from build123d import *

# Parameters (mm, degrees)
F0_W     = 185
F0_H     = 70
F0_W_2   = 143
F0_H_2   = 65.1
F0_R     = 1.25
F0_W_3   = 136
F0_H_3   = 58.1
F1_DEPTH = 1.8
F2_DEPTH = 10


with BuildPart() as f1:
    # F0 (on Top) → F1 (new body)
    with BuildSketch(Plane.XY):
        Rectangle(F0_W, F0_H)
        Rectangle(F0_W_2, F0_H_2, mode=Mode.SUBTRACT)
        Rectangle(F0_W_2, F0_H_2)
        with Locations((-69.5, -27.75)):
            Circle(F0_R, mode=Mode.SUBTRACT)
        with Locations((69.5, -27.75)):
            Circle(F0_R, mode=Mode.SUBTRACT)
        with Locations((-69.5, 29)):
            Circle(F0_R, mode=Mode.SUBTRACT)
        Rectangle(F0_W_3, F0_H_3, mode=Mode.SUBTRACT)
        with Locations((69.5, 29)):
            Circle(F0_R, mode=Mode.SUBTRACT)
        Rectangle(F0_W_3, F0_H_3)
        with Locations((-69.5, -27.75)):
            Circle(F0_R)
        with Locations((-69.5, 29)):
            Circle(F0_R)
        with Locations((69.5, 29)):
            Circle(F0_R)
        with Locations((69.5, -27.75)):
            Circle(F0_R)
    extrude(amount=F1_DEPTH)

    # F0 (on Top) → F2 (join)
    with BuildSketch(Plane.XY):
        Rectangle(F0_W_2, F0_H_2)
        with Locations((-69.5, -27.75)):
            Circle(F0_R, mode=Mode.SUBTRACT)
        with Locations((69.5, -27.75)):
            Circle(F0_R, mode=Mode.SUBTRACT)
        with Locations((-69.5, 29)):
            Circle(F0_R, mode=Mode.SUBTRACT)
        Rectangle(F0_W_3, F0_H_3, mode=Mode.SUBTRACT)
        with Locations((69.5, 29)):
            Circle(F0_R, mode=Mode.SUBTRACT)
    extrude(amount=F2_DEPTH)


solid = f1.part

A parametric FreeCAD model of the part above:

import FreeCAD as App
import Part
import Sketcher
from FreeCAD import Vector

doc = App.newDocument("Part")
params = doc.addObject("Spreadsheet::Sheet", "Params")
for row, (alias, value) in enumerate([
    ("sketch1_width", "185 mm"),
    ("sketch1_height", "70 mm"),
    ("pad1_length", "1.8 mm"),
    ("sketch2_diameter", "2.5 mm"),
    ("sketch2_width", "143 mm"),
    ("sketch2_width2", "136 mm"),
    ("sketch2_height", "65.1 mm"),
    ("sketch2_height2", "58.1 mm"),
    ("pad2_length", "10 mm"),
], start=1):
    params.set(f"A{row}", alias)
    params.set(f"B{row}", "=" + value)
    params.setAlias(f"B{row}", alias)

body = doc.addObject("PartDesign::Body", "Body")

sketch1 = body.newObject("Sketcher::SketchObject", "Sketch")
sketch1.AttachmentSupport = (doc.getObject("XY_Plane"), [""])
sketch1.MapMode = "FlatFace"
sketch1.addGeometry([
    Part.LineSegment(Vector(-92.5, 35, 0), Vector(-92.5, -35, 0)),
    Part.LineSegment(Vector(-92.5, -35, 0), Vector(92.5, -35, 0)),
    Part.LineSegment(Vector(92.5, -35, 0), Vector(92.5, 35, 0)),
    Part.LineSegment(Vector(92.5, 35, 0), Vector(-92.5, 35, 0)),
], False)
sketch1.addConstraint([
    Sketcher.Constraint("Coincident", 0, 2, 1, 1),
    Sketcher.Constraint("Coincident", 1, 2, 2, 1),
    Sketcher.Constraint("Coincident", 2, 2, 3, 1),
    Sketcher.Constraint("Coincident", 3, 2, 0, 1),
    Sketcher.Constraint("Vertical", 0),
    Sketcher.Constraint("Horizontal", 1),
    Sketcher.Constraint("Vertical", 2),
    Sketcher.Constraint("Horizontal", 3),
    Sketcher.Constraint("Symmetric", 0, 2, 2, 2, -1, 1),
    Sketcher.Constraint("DistanceX", 1, 1, 1, 2, 185.0),
    Sketcher.Constraint("DistanceY", 0, 2, 0, 1, 70.0),
])
sketch1.setExpression("Constraints[9]", "Params.sketch1_width")
sketch1.setExpression("Constraints[10]", "Params.sketch1_height")
pad1 = body.newObject("PartDesign::Pad", "Pad")
pad1.Profile = sketch1
pad1.setExpression("Length", "Params.pad1_length")

sketch2 = body.newObject("Sketcher::SketchObject", "Sketch001")
sketch2.AttachmentSupport = (doc.getObject("XY_Plane"), [""])
sketch2.MapMode = "FlatFace"
sketch2.addGeometry([
    Part.LineSegment(Vector(-71.5, 32.55, 0), Vector(-71.5, -32.55, 0)),
    Part.LineSegment(Vector(-71.5, -32.55, 0), Vector(71.5, -32.55, 0)),
    Part.LineSegment(Vector(71.5, -32.55, 0), Vector(71.5, 32.55, 0)),
    Part.LineSegment(Vector(71.5, 32.55, 0), Vector(-71.5, 32.55, 0)),
    Part.Circle(Vector(-69.5, -27.75, 0), Vector(0, 0, 1), 1.25),
    Part.Circle(Vector(69.5, -27.75, 0), Vector(0, 0, 1), 1.25),
    Part.LineSegment(Vector(68, -29.05, 0), Vector(-68, -29.05, 0)),
    Part.LineSegment(Vector(-68, -29.05, 0), Vector(-68, 29.05, 0)),
    Part.LineSegment(Vector(-68, 29.05, 0), Vector(68, 29.05, 0)),
    Part.LineSegment(Vector(68, 29.05, 0), Vector(68, -29.05, 0)),
    Part.Circle(Vector(-69.5, 29, 0), Vector(0, 0, 1), 1.25),
    Part.Circle(Vector(69.5, 29, 0), Vector(0, 0, 1), 1.25),
], False)
sketch2.addConstraint([
    Sketcher.Constraint("Coincident", 0, 2, 1, 1),
    Sketcher.Constraint("Coincident", 1, 2, 2, 1),
    Sketcher.Constraint("Coincident", 2, 2, 3, 1),
    Sketcher.Constraint("Coincident", 3, 2, 0, 1),
    Sketcher.Constraint("Coincident", 6, 2, 7, 1),
    Sketcher.Constraint("Coincident", 7, 2, 8, 1),
    Sketcher.Constraint("Coincident", 8, 2, 9, 1),
    Sketcher.Constraint("Coincident", 9, 2, 6, 1),
    Sketcher.Constraint("Vertical", 0),
    Sketcher.Constraint("Horizontal", 1),
    Sketcher.Constraint("Vertical", 2),
    Sketcher.Constraint("Horizontal", 3),
    Sketcher.Constraint("Horizontal", 6),
    Sketcher.Constraint("Vertical", 7),
    Sketcher.Constraint("Horizontal", 8),
    Sketcher.Constraint("Vertical", 9),
    Sketcher.Constraint("Equal", 4, 5),
    Sketcher.Constraint("Equal", 5, 10),
    Sketcher.Constraint("Equal", 10, 11),
    Sketcher.Constraint("Symmetric", 0, 2, 2, 2, -1, 1),
    Sketcher.Constraint("Symmetric", 6, 2, 8, 2, -1, 1),
    Sketcher.Constraint("Symmetric", 4, 3, 5, 3, -2),
    Sketcher.Constraint("Symmetric", 10, 3, 11, 3, -2),
    Sketcher.Constraint("Vertical", 4, 3, 10, 3),
    Sketcher.Constraint("Diameter", 4, 2.5),
    Sketcher.Constraint("DistanceX", 1, 1, 1, 2, 143.0),
    Sketcher.Constraint("DistanceX", 6, 2, 6, 1, 136.0),
    Sketcher.Constraint("DistanceY", 0, 2, 0, 1, 65.1),
    Sketcher.Constraint("DistanceY", 7, 1, 7, 2, 58.1),
    Sketcher.Constraint("DistanceY", -1, 1, 10, 3, 29.0),
    Sketcher.Constraint("DistanceX", 4, 3, 5, 3, 139.0),
    Sketcher.Constraint("DistanceY", 0, 2, 4, 3, 4.8),
])
sketch2.setExpression("Constraints[24]", "Params.sketch2_diameter")
sketch2.setExpression("Constraints[25]", "Params.sketch2_width")
sketch2.setExpression("Constraints[26]", "Params.sketch2_width2")
sketch2.setExpression("Constraints[27]", "Params.sketch2_height")
sketch2.setExpression("Constraints[28]", "Params.sketch2_height2")
pad2 = body.newObject("PartDesign::Pad", "Pad001")
pad2.Profile = sketch2
pad2.setExpression("Length", "Params.pad2_length")

doc.recompute()
